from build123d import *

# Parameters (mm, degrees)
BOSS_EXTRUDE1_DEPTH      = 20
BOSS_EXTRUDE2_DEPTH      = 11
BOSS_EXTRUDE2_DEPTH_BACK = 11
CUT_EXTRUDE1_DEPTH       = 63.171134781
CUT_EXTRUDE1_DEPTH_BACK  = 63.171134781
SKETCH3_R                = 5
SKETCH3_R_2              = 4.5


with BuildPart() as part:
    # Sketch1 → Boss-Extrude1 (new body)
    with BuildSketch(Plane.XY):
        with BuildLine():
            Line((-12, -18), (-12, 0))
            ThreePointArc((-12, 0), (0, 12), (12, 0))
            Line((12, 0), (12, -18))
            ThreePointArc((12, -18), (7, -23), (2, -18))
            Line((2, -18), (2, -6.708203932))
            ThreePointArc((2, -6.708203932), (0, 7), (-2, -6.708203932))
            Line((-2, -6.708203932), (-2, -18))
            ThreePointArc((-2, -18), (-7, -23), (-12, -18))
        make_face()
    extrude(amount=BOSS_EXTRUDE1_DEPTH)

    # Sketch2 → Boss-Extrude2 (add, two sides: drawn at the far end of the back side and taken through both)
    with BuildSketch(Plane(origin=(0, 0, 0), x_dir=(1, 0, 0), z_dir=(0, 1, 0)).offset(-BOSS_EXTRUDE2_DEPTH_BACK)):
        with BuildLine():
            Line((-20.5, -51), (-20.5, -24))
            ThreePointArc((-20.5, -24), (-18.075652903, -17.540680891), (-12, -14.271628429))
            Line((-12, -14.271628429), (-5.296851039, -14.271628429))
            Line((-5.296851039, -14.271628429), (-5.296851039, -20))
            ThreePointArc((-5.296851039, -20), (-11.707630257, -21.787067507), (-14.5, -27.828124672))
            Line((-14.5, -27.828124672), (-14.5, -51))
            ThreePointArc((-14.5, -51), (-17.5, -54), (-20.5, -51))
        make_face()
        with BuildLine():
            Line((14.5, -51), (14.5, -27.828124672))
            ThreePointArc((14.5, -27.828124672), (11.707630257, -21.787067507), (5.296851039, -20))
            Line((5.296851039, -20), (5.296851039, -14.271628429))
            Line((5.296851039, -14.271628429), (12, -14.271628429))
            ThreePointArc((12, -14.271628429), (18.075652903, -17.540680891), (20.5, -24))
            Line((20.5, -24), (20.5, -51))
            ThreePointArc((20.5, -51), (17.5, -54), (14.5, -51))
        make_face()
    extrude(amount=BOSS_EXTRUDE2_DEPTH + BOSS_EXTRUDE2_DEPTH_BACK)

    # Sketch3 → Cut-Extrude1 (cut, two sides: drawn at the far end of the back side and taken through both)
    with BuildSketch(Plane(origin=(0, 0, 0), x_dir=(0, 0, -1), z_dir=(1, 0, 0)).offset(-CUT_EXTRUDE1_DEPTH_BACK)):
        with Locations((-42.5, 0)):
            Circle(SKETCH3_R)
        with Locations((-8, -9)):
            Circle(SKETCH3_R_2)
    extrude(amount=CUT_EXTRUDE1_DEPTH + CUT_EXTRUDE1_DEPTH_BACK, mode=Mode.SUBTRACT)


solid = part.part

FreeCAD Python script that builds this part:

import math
import FreeCAD as App
import Part
import Sketcher

V = App.Vector
Q = App.Units.Quantity

doc = App.newDocument("Part")
body = doc.addObject("PartDesign::Body", "Body")

# Sketch on XY plane
sketch1 = body.newObject("Sketcher::SketchObject", "Sketch")
sketch1.AttachmentSupport = (doc.getObject("XY_Plane"), [""])
sketch1.MapMode = "FlatFace"
sketch1.addGeometry([
    Part.LineSegment(V(-12, 0, 0), V(-12, -18, 0)),  # 0
    Part.ArcOfCircle(Part.Circle(V(-7, -18, 0), V(0, 0, 1), 5), math.radians(180), math.radians(360)),  # 1
    Part.LineSegment(V(-2, -18, 0), V(-2, -6.708204, 0)),  # 2
    Part.ArcOfCircle(Part.Circle(V(0, 0, 0), V(0, 0, 1), 7), math.radians(-73.39845), math.radians(253.39845)),  # 3
    Part.LineSegment(V(2, -6.708204, 0), V(2, -18, 0)),  # 4
    Part.ArcOfCircle(Part.Circle(V(7, -18, 0), V(0, 0, 1), 5), math.radians(180), math.radians(360)),  # 5
    Part.LineSegment(V(12, -18, 0), V(12, 0, 0)),  # 6
    Part.ArcOfCircle(Part.Circle(V(0, 0, 0), V(0, 0, 1), 12), math.radians(0), math.radians(180)),  # 7
], False)
sketch1.addConstraint([
    Sketcher.Constraint("Tangent", 0, 2, 1, 1),
    Sketcher.Constraint("Tangent", 1, 2, 2, 1),
    Sketcher.Constraint("Coincident", 2, 2, 3, 2),
    Sketcher.Constraint("Coincident", 3, 1, 4, 1),
    Sketcher.Constraint("Tangent", 4, 2, 5, 1),
    Sketcher.Constraint("Tangent", 5, 2, 6, 1),
    Sketcher.Constraint("Tangent", 6, 2, 7, 1),
    Sketcher.Constraint("Tangent", 7, 2, 0, 1),
    Sketcher.Constraint("Vertical", 0),
    Sketcher.Constraint("Vertical", 2),
    Sketcher.Constraint("Vertical", 4),
    Sketcher.Constraint("Vertical", 6),
    Sketcher.Constraint("Coincident", 3, 3, -1, 1),
    Sketcher.Constraint("Coincident", 7, 3, -1, 1),
    Sketcher.Constraint("Equal", 1, 5),
    Sketcher.Constraint("Horizontal", 1, 3, 5, 3),
    Sketcher.Constraint("Radius", 1, Q("5 mm")),
    Sketcher.Constraint("Radius", 3, Q("7 mm")),
    Sketcher.Constraint("Radius", 7, Q("12 mm")),
    Sketcher.Constraint("DistanceY", 0, 2, 0, 1, Q("18 mm")),
])
pad1 = body.newObject("PartDesign::Pad", "Pad")
pad1.Profile = sketch1
pad1.Length = 20

# Sketch on XZ plane
sketch2 = body.newObject("Sketcher::SketchObject", "Sketch001")
sketch2.AttachmentSupport = (doc.getObject("XZ_Plane"), [""])
sketch2.MapMode = "FlatFace"
sketch2.addGeometry([
    Part.LineSegment(V(-20.5, 24, 0), V(-20.5, 51, 0)),  # 0
    Part.ArcOfCircle(Part.Circle(V(-17.5, 51, 0), V(0, 0, 1), 3), math.radians(0), math.radians(180)),  # 1
    Part.LineSegment(V(-14.5, 51, 0), V(-14.5, 27.828125, 0)),  # 2
    Part.ArcOfCircle(Part.Circle(V(-6.569155, 27.828125, 0), V(0, 0, 1), 7.930845), math.radians(180), math.radians(279.231556)),  # 3
    Part.LineSegment(V(-5.296851, 20, 0), V(-5.296851, 14.271628, 0)),  # 4
    Part.LineSegment(V(-5.296851, 14.271628, 0), V(-12, 14.271628, 0)),  # 5
    Part.ArcOfCircle(Part.Circle(V(-10.68287, 24, 0), V(0, 0, 1), 9.81713), math.radians(-180), math.radians(-97.710427)),  # 6
    Part.LineSegment(V(14.5, 27.828125, 0), V(14.5, 51, 0)),  # 7
    Part.ArcOfCircle(Part.Circle(V(17.5, 51, 0), V(0, 0, 1), 3), math.radians(0), math.radians(180)),  # 8
    Part.LineSegment(V(20.5, 51, 0), V(20.5, 24, 0)),  # 9
    Part.ArcOfCircle(Part.Circle(V(10.68287, 24, 0), V(0, 0, 1), 9.81713), math.radians(-82.289573), math.radians(0)),  # 10
    Part.LineSegment(V(12, 14.271628, 0), V(5.296851, 14.271628, 0)),  # 11
    Part.LineSegment(V(5.296851, 14.271628, 0), V(5.296851, 20, 0)),  # 12
    Part.ArcOfCircle(Part.Circle(V(6.569155, 27.828125, 0), V(0, 0, 1), 7.930845), math.radians(-99.231556), math.radians(0)),  # 13
], False)
sketch2.addConstraint([
    Sketcher.Constraint("Tangent", 0, 2, 1, 2),
    Sketcher.Constraint("Tangent", 1, 1, 2, 1),
    Sketcher.Constraint("Tangent", 2, 2, 3, 1),
    Sketcher.Constraint("Coincident", 3, 2, 4, 1),
    Sketcher.Constraint("Coincident", 4, 2, 5, 1),
    Sketcher.Constraint("Coincident", 5, 2, 6, 2),
    Sketcher.Constraint("Tangent", 6, 1, 0, 1),
    Sketcher.Constraint("Tangent", 7, 2, 8, 2),
    Sketcher.Constraint("Tangent", 8, 1, 9, 1),
    Sketcher.Constraint("Tangent", 9, 2, 10, 2),
    Sketcher.Constraint("Coincident", 10, 1, 11, 1),
    Sketcher.Constraint("Coincident", 11, 2, 12, 1),
    Sketcher.Constraint("Coincident", 12, 2, 13, 1),
    Sketcher.Constraint("Tangent", 13, 2, 7, 1),
    Sketcher.Constraint("Vertical", 0),
    Sketcher.Constraint("Vertical", 2),
    Sketcher.Constraint("Vertical", 4),
    Sketcher.Constraint("Horizontal", 5),
    Sketcher.Constraint("Vertical", 7),
    Sketcher.Constraint("Vertical", 9),
    Sketcher.Constraint("Horizontal", 11),
    Sketcher.Constraint("Vertical", 12),
    Sketcher.Constraint("Equal", 1, 8),
    Sketcher.Constraint("Equal", 6, 10),
    Sketcher.Constraint("Equal", 3, 13),
    Sketcher.Constraint("Symmetric", 1, 3, 8, 3, -2),
    Sketcher.Constraint("Symmetric", 5, 2, 10, 1, -2),
    Sketcher.Constraint("Symmetric", 3, 2, 12, 2, -2),
    Sketcher.Constraint("Radius", 1, Q("3 mm")),
    Sketcher.Constraint("DistanceY", 0, 1, 0, 2, Q("27 mm")),
    Sketcher.Constraint("DistanceY", -1, 1, 1, 3, Q("51 mm")),
    Sketcher.Constraint("DistanceY", -1, 1, 3, 2, Q("20 mm")),
    Sketcher.Constraint("DistanceX", 5, 2, -1, 1, Q("12 mm")),
    Sketcher.Constraint("DistanceX", 1, 3, 8, 3, Q("35 mm")),
    Sketcher.Constraint("Radius", 6, Q("9.81713 mm")),
    Sketcher.Constraint("Radius", 3, Q("7.930845 mm")),
    Sketcher.Constraint("DistanceX", 5, 2, 5, 1, Q("6.703149 mm")),
])
pad2 = body.newObject("PartDesign::Pad", "Pad001")
pad2.Profile = sketch2
pad2.Type = "TwoLengths"
pad2.Length = 11
pad2.Length2 = 11
pad2.Reversed = True

# Sketch on YZ plane
sketch3 = body.newObject("Sketcher::SketchObject", "Sketch002")
sketch3.AttachmentSupport = (doc.getObject("YZ_Plane"), [""])
sketch3.MapMode = "FlatFace"
sketch3.addGeometry([
    Part.Circle(V(0, 42.5, 0), V(0, 0, 1), 5),
    Part.Circle(V(-9, 8, 0), V(0, 0, 1), 4.5),
], False)
sketch3.addConstraint([
    Sketcher.Constraint("PointOnObject", 0, 3, -2),
    Sketcher.Constraint("Diameter", 0, Q("10 mm")),
    Sketcher.Constraint("Diameter", 1, Q("9 mm")),
    Sketcher.Constraint("DistanceX", 1, 3, -1, 1, Q("9 mm")),
    Sketcher.Constraint("DistanceY", -1, 1, 1, 3, Q("8 mm")),
    Sketcher.Constraint("DistanceY", -1, 1, 0, 3, Q("42.5 mm")),
])
pocket1 = body.newObject("PartDesign::Pocket", "Pocket")
pocket1.Profile = sketch3
pocket1.Type = "ThroughAll"
pocket1.Midplane = True

doc.recompute()
